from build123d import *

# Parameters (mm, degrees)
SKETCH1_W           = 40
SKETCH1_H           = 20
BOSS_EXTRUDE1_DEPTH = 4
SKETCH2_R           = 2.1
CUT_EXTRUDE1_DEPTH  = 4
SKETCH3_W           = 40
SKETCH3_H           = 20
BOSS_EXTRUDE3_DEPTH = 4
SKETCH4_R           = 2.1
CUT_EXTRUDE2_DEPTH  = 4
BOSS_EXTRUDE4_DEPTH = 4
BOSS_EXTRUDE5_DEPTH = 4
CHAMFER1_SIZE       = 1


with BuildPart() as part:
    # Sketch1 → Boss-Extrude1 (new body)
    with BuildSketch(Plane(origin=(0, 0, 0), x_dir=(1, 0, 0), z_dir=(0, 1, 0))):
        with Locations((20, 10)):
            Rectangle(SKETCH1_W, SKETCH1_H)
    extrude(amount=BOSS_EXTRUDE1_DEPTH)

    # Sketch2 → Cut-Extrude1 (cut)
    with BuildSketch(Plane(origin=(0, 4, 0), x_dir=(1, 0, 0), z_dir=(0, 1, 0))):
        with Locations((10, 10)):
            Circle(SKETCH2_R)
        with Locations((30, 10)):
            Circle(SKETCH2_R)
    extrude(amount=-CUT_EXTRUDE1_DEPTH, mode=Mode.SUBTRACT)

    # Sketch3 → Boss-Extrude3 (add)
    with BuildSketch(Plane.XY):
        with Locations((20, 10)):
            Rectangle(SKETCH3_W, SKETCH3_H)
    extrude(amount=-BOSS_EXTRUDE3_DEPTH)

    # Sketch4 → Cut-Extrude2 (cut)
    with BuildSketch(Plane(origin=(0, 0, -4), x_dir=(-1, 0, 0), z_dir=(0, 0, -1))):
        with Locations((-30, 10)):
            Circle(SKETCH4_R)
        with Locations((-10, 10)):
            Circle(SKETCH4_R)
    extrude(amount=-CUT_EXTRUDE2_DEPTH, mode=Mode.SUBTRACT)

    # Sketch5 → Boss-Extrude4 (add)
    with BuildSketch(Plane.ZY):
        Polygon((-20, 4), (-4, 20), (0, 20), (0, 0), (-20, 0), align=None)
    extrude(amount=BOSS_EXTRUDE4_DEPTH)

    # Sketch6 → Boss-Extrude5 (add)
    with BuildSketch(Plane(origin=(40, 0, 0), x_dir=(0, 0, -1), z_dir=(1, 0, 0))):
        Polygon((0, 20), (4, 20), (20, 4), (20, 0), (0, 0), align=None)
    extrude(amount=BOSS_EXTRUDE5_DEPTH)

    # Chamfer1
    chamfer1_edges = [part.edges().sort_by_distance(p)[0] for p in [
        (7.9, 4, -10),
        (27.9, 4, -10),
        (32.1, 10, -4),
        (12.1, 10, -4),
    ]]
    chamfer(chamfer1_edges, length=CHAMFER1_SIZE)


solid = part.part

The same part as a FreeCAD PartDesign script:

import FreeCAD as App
import Part
import Sketcher
from FreeCAD import Vector
Q = App.Units.Quantity


def edges_at(feature, points):
    """Names of the edges that pass closest to the given points."""
    edges = feature.Shape.Edges
    near = lambda p: min(range(len(edges)), key=lambda i: edges[i].distToShape(Part.Vertex(*p))[0])
    return sorted({f"Edge{near(p) + 1}" for p in points})

doc = App.newDocument("Part")
body = doc.addObject("PartDesign::Body", "Body")

# Sketch on XZ plane
sketch1 = body.newObject("Sketcher::SketchObject", "Sketch")
sketch1.AttachmentSupport = (doc.getObject("XZ_Plane"), [""])
sketch1.MapMode = "FlatFace"
sketch1.addGeometry(Part.LineSegment(Vector(0, -20, 0), Vector(0, 0, 0)), False)
sketch1.addGeometry(Part.LineSegment(Vector(0, 0, 0), Vector(40, 0, 0)), False)
sketch1.addGeometry(Part.LineSegment(Vector(40, 0, 0), Vector(40, -20, 0)), False)
sketch1.addGeometry(Part.LineSegment(Vector(40, -20, 0), Vector(0, -20, 0)), False)
sketch1.addConstraint(Sketcher.Constraint("Coincident", 0, 2, 1, 1))
sketch1.addConstraint(Sketcher.Constraint("Coincident", 1, 2, 2, 1))
sketch1.addConstraint(Sketcher.Constraint("Coincident", 2, 2, 3, 1))
sketch1.addConstraint(Sketcher.Constraint("Coincident", 3, 2, 0, 1))
sketch1.addConstraint(Sketcher.Constraint("Vertical", 0))
sketch1.addConstraint(Sketcher.Constraint("Horizontal", 1))
sketch1.addConstraint(Sketcher.Constraint("Vertical", 2))
sketch1.addConstraint(Sketcher.Constraint("Horizontal", 3))
sketch1.addConstraint(Sketcher.Constraint("Coincident", 0, 2, -1, 1))
sketch1.addConstraint(Sketcher.Constraint("DistanceX", 1, 1, 1, 2, Q("40 mm")))
sketch1.addConstraint(Sketcher.Constraint("DistanceY", 0, 1, 0, 2, Q("20 mm")))
pad1 = body.newObject("PartDesign::Pad", "Pad")
pad1.Profile = sketch1
pad1.Length = 4
pad1.Reversed = True

# Sketch on XZ plane
sketch2 = body.newObject("Sketcher::SketchObject", "Sketch001")
sketch2.AttachmentSupport = (doc.getObject("XZ_Plane"), [""])
sketch2.MapMode = "FlatFace"
sketch2.AttachmentOffset = App.Placement(Vector(0, 0, -4), App.Rotation())
sketch2.addGeometry(Part.Circle(Vector(10, -10, 0), Vector(0, 0, 1), 2.1), False)
sketch2.addGeometry(Part.Circle(Vector(30, -10, 0), Vector(0, 0, 1), 2.1), False)
sketch2.addConstraint(Sketcher.Constraint("Equal", 0, 1))
sketch2.addConstraint(Sketcher.Constraint("Horizontal", 0, 3, 1, 3))
sketch2.addConstraint(Sketcher.Constraint("Diameter", 0, Q("4.2 mm")))
sketch2.addConstraint(Sketcher.Constraint("DistanceX", -1, 1, 0, 3, Q("10 mm")))
sketch2.addConstraint(Sketcher.Constraint("DistanceY", 0, 3, -1, 1, Q("10 mm")))
sketch2.addConstraint(Sketcher.Constraint("DistanceX", -1, 1, 1, 3, Q("30 mm")))
pocket1 = body.newObject("PartDesign::Pocket", "Pocket")
pocket1.Profile = sketch2
pocket1.Length = 4
pocket1.Reversed = True

# Sketch on XY plane
sketch3 = body.newObject("Sketcher::SketchObject", "Sketch002")
sketch3.AttachmentSupport = (doc.getObject("XY_Plane"), [""])
sketch3.MapMode = "FlatFace"
sketch3.addGeometry(Part.LineSegment(Vector(0, 20, 0), Vector(0, 0, 0)), False)
sketch3.addGeometry(Part.LineSegment(Vector(0, 0, 0), Vector(40, 0, 0)), False)
sketch3.addGeometry(Part.LineSegment(Vector(40, 0, 0), Vector(40, 20, 0)), False)
sketch3.addGeometry(Part.LineSegment(Vector(40, 20, 0), Vector(0, 20, 0)), False)
sketch3.addConstraint(Sketcher.Constraint("Coincident", 0, 2, 1, 1))
sketch3.addConstraint(Sketcher.Constraint("Coincident", 1, 2, 2, 1))
sketch3.addConstraint(Sketcher.Constraint("Coincident", 2, 2, 3, 1))
sketch3.addConstraint(Sketcher.Constraint("Coincident", 3, 2, 0, 1))
sketch3.addConstraint(Sketcher.Constraint("Vertical", 0))
sketch3.addConstraint(Sketcher.Constraint("Horizontal", 1))
sketch3.addConstraint(Sketcher.Constraint("Vertical", 2))
sketch3.addConstraint(Sketcher.Constraint("Horizontal", 3))
sketch3.addConstraint(Sketcher.Constraint("Coincident", 0, 2, -1, 1))
sketch3.addConstraint(Sketcher.Constraint("DistanceX", 1, 1, 1, 2, Q("40 mm")))
sketch3.addConstraint(Sketcher.Constraint("DistanceY", 0, 2, 0, 1, Q("20 mm")))
pad2 = body.newObject("PartDesign::Pad", "Pad001")
pad2.Profile = sketch3
pad2.Length = 4
pad2.Reversed = True

# Sketch on XY plane
sketch4 = body.newObject("Sketcher::SketchObject", "Sketch003")
sketch4.AttachmentSupport = (doc.getObject("XY_Plane"), [""])
sketch4.MapMode = "FlatFace"
sketch4.AttachmentOffset = App.Placement(Vector(0, 0, -4), App.Rotation())
sketch4.addGeometry(Part.Circle(Vector(30, 10, 0), Vector(0, 0, 1), 2.1), False)
sketch4.addGeometry(Part.Circle(Vector(10, 10, 0), Vector(0, 0, 1), 2.1), False)
sketch4.addConstraint(Sketcher.Constraint("Equal", 0, 1))
sketch4.addConstraint(Sketcher.Constraint("Horizontal", 0, 3, 1, 3))
sketch4.addConstraint(Sketcher.Constraint("Diameter", 0, Q("4.2 mm")))
sketch4.addConstraint(Sketcher.Constraint("DistanceX", -1, 1, 0, 3, Q("30 mm")))
sketch4.addConstraint(Sketcher.Constraint("DistanceY", -1, 1, 0, 3, Q("10 mm")))
sketch4.addConstraint(Sketcher.Constraint("DistanceX", -1, 1, 1, 3, Q("10 mm")))
pocket2 = body.newObject("PartDesign::Pocket", "Pocket001")
pocket2.Profile = sketch4
pocket2.Length = 4
pocket2.Reversed = True

# Sketch on YZ plane
sketch5 = body.newObject("Sketcher::SketchObject", "Sketch004")
sketch5.AttachmentSupport = (doc.getObject("YZ_Plane"), [""])
sketch5.MapMode = "FlatFace"
sketch5.addGeometry(Part.LineSegment(Vector(20, -4, 0), Vector(4, -20, 0)), False)
sketch5.addGeometry(Part.LineSegment(Vector(4, -20, 0), Vector(0, -20, 0)), False)
sketch5.addGeometry(Part.LineSegment(Vector(0, -20, 0), Vector(0, 0, 0)), False)
sketch5.addGeometry(Part.LineSegment(Vector(0, 0, 0), Vector(20, 0, 0)), False)
sketch5.addGeometry(Part.LineSegment(Vector(20, 0, 0), Vector(20, -4, 0)), False)
sketch5.addConstraint(Sketcher.Constraint("Coincident", 0, 2, 1, 1))
sketch5.addConstraint(Sketcher.Constraint("Coincident", 1, 2, 2, 1))
sketch5.addConstraint(Sketcher.Constraint("Coincident", 2, 2, 3, 1))
sketch5.addConstraint(Sketcher.Constraint("Coincident", 3, 2, 4, 1))
sketch5.addConstraint(Sketcher.Constraint("Coincident", 4, 2, 0, 1))
sketch5.addConstraint(Sketcher.Constraint("Horizontal", 1))
sketch5.addConstraint(Sketcher.Constraint("Vertical", 2))
sketch5.addConstraint(Sketcher.Constraint("Horizontal", 3))
sketch5.addConstraint(Sketcher.Constraint("Vertical", 4))
sketch5.addConstraint(Sketcher.Constraint("Coincident", 2, 2, -1, 1))
sketch5.addConstraint(Sketcher.Constraint("Equal", 3, 2))
sketch5.addConstraint(Sketcher.Constraint("Equal", 1, 4))
sketch5.addConstraint(Sketcher.Constraint("DistanceX", 1, 2, 1, 1, Q("4 mm")))
sketch5.addConstraint(Sketcher.Constraint("DistanceX", 3, 1, 3, 2, Q("20 mm")))
pad3 = body.newObject("PartDesign::Pad", "Pad002")
pad3.Profile = sketch5
pad3.Length = 4
pad3.Reversed = True

# Sketch on YZ plane
sketch6 = body.newObject("Sketcher::SketchObject", "Sketch005")
sketch6.AttachmentSupport = (doc.getObject("YZ_Plane"), [""])
sketch6.MapMode = "FlatFace"
sketch6.AttachmentOffset = App.Placement(Vector(0, 0, 40), App.Rotation())
sketch6.addGeometry(Part.LineSegment(Vector(20, -4, 0), Vector(20, 0, 0)), False)
sketch6.addGeometry(Part.LineSegment(Vector(20, 0, 0), Vector(0, 0, 0)), False)
sketch6.addGeometry(Part.LineSegment(Vector(0, 0, 0), Vector(0, -20, 0)), False)
sketch6.addGeometry(Part.LineSegment(Vector(0, -20, 0), Vector(4, -20, 0)), False)
sketch6.addGeometry(Part.LineSegment(Vector(4, -20, 0), Vector(20, -4, 0)), False)
sketch6.addConstraint(Sketcher.Constraint("Coincident", 0, 2, 1, 1))
sketch6.addConstraint(Sketcher.Constraint("Coincident", 1, 2, 2, 1))
sketch6.addConstraint(Sketcher.Constraint("Coincident", 2, 2, 3, 1))
sketch6.addConstraint(Sketcher.Constraint("Coincident", 3, 2, 4, 1))
sketch6.addConstraint(Sketcher.Constraint("Coincident", 4, 2, 0, 1))
sketch6.addConstraint(Sketcher.Constraint("Vertical", 0))
sketch6.addConstraint(Sketcher.Constraint("Horizontal", 1))
sketch6.addConstraint(Sketcher.Constraint("Vertical", 2))
sketch6.addConstraint(Sketcher.Constraint("Horizontal", 3))
sketch6.addConstraint(Sketcher.Constraint("Coincident", 1, 2, -1, 1))
sketch6.addConstraint(Sketcher.Constraint("Equal", 3, 0))
sketch6.addConstraint(Sketcher.Constraint("Equal", 1, 2))
sketch6.addConstraint(Sketcher.Constraint("DistanceX", 1, 2, 1, 1, Q("20 mm")))
sketch6.addConstraint(Sketcher.Constraint("DistanceX", 3, 1, 3, 2, Q("4 mm")))
pad4 = body.newObject("PartDesign::Pad", "Pad003")
pad4.Profile = sketch6
pad4.Length = 4
doc.recompute()

chamfer = body.newObject("PartDesign::Chamfer", "Chamfer")
chamfer.Base = (pad4, edges_at(pad4, [
    (7.9, 4, -10),
    (27.9, 4, -10),
    (32.1, 10, -4),
    (12.1, 10, -4),
]))
chamfer.Size = 1

doc.recompute()
